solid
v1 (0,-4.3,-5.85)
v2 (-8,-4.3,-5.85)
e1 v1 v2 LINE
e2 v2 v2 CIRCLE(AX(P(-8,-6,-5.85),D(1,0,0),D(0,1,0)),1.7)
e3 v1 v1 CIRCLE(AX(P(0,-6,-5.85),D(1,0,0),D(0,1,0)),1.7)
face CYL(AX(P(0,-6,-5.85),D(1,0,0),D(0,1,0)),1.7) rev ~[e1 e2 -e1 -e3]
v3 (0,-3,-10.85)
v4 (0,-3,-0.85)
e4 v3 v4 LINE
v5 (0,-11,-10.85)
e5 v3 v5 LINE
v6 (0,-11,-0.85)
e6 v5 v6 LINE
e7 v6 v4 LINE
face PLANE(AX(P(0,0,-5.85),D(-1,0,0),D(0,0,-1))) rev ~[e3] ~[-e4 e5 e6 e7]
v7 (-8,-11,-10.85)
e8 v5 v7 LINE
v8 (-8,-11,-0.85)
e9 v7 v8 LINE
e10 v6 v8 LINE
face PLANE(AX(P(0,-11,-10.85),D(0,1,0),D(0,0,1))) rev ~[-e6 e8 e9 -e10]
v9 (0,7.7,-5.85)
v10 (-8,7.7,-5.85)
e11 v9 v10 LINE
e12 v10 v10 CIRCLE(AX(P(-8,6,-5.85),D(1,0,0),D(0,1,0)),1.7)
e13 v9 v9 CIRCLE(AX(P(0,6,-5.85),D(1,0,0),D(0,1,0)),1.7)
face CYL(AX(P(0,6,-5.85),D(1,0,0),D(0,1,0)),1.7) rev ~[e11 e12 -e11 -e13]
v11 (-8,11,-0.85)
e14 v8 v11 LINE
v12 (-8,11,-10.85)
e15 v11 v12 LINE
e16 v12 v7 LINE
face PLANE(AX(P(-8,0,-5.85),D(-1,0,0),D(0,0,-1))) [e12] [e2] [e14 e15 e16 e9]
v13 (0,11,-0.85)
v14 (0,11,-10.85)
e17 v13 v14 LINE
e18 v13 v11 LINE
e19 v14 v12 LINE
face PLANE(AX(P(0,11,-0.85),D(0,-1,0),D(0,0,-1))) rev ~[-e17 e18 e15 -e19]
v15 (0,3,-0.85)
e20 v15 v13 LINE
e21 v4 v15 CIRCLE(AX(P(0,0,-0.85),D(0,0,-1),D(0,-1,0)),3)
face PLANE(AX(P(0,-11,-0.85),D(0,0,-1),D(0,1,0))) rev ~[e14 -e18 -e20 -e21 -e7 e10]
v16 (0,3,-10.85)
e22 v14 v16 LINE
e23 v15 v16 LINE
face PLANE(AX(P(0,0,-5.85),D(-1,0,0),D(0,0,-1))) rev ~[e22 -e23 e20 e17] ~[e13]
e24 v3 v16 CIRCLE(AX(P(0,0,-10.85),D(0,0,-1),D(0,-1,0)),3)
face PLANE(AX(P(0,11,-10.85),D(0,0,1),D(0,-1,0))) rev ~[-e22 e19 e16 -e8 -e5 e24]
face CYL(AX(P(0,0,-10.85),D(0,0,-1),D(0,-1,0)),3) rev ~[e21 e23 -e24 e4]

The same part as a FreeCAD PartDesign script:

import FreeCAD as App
import Part
import Sketcher

V = App.Vector


def add_polygon(sketch, points):
    """Adds a closed chain of lines whose ends are joined by coincident constraints."""
    first, n = sketch.GeometryCount, len(points)
    for a, b in zip(points, points[1:] + points[:1]):
        sketch.addGeometry(Part.LineSegment(App.Vector(*a, 0), App.Vector(*b, 0)), False)
    for i in range(n):
        sketch.addConstraint(Sketcher.Constraint("Coincident", first + i, 2, first + (i + 1) % n, 1))

doc = App.newDocument("Part")
body = doc.addObject("PartDesign::Body", "Body")

# Sketch on YZ plane
sketch1 = body.newObject("Sketcher::SketchObject", "Sketch")
sketch1.AttachmentSupport = (doc.getObject("YZ_Plane"), [""])
sketch1.MapMode = "FlatFace"
add_polygon(sketch1, [(-11, -10.8), (11, -10.8), (11, -0.8), (-11, -0.8)])  # lines 0-3
sketch1.addGeometry(Part.Circle(V(-6, -5.8, 0), V(0, 0, 1), 1.7), False)  # 4
sketch1.addGeometry(Part.Circle(V(6, -5.8, 0), V(0, 0, 1), 1.7), False)  # 5
sketch1.addConstraint(Sketcher.Constraint("Horizontal", 0))
sketch1.addConstraint(Sketcher.Constraint("Vertical", 1))
sketch1.addConstraint(Sketcher.Constraint("Horizontal", 2))
sketch1.addConstraint(Sketcher.Constraint("Vertical", 3))
sketch1.addConstraint(Sketcher.Constraint("Equal", 4, 5))
sketch1.addConstraint(Sketcher.Constraint("Symmetric", 4, 3, 5, 3, -2))
sketch1.addConstraint(Sketcher.Constraint("DistanceX", -1, 1, 0, 2, 11.0))
sketch1.addConstraint(Sketcher.Constraint("DistanceX", 2, 2, -1, 1, 11.0))
sketch1.addConstraint(Sketcher.Constraint("Diameter", 4, 3.4))
sketch1.addConstraint(Sketcher.Constraint("DistanceY", 1, 1, 1, 2, 10.0))
sketch1.addConstraint(Sketcher.Constraint("DistanceX", 4, 3, -1, 1, 6.0))
sketch1.addConstraint(Sketcher.Constraint("DistanceY", 0, 2, 5, 3, 5.0))
sketch1.addConstraint(Sketcher.Constraint("DistanceY", 4, 3, -1, 1, 5.85))
pad1 = body.newObject("PartDesign::Pad", "Pad")
pad1.Profile = sketch1
pad1.Length = 8
pad1.Reversed = True

# Sketch on XY plane
sketch2 = body.newObject("Sketcher::SketchObject", "Sketch001")
sketch2.AttachmentSupport = (doc.getObject("XY_Plane"), [""])
sketch2.MapMode = "FlatFace"
sketch2.AttachmentOffset = App.Placement(V(0, 0, -10.85), App.Rotation())
sketch2.addGeometry(Part.Circle(V(0, 0, 0), V(0, 0, 1), 3), False)
sketch2.addConstraint(Sketcher.Constraint("Coincident", 0, 3, -1, 1))
sketch2.addConstraint(Sketcher.Constraint("Diameter", 0, 6.0))
pocket1 = body.newObject("PartDesign::Pocket", "Pocket")
pocket1.Profile = sketch2
pocket1.Type = "ThroughAll"
pocket1.Reversed = True

doc.recompute()
